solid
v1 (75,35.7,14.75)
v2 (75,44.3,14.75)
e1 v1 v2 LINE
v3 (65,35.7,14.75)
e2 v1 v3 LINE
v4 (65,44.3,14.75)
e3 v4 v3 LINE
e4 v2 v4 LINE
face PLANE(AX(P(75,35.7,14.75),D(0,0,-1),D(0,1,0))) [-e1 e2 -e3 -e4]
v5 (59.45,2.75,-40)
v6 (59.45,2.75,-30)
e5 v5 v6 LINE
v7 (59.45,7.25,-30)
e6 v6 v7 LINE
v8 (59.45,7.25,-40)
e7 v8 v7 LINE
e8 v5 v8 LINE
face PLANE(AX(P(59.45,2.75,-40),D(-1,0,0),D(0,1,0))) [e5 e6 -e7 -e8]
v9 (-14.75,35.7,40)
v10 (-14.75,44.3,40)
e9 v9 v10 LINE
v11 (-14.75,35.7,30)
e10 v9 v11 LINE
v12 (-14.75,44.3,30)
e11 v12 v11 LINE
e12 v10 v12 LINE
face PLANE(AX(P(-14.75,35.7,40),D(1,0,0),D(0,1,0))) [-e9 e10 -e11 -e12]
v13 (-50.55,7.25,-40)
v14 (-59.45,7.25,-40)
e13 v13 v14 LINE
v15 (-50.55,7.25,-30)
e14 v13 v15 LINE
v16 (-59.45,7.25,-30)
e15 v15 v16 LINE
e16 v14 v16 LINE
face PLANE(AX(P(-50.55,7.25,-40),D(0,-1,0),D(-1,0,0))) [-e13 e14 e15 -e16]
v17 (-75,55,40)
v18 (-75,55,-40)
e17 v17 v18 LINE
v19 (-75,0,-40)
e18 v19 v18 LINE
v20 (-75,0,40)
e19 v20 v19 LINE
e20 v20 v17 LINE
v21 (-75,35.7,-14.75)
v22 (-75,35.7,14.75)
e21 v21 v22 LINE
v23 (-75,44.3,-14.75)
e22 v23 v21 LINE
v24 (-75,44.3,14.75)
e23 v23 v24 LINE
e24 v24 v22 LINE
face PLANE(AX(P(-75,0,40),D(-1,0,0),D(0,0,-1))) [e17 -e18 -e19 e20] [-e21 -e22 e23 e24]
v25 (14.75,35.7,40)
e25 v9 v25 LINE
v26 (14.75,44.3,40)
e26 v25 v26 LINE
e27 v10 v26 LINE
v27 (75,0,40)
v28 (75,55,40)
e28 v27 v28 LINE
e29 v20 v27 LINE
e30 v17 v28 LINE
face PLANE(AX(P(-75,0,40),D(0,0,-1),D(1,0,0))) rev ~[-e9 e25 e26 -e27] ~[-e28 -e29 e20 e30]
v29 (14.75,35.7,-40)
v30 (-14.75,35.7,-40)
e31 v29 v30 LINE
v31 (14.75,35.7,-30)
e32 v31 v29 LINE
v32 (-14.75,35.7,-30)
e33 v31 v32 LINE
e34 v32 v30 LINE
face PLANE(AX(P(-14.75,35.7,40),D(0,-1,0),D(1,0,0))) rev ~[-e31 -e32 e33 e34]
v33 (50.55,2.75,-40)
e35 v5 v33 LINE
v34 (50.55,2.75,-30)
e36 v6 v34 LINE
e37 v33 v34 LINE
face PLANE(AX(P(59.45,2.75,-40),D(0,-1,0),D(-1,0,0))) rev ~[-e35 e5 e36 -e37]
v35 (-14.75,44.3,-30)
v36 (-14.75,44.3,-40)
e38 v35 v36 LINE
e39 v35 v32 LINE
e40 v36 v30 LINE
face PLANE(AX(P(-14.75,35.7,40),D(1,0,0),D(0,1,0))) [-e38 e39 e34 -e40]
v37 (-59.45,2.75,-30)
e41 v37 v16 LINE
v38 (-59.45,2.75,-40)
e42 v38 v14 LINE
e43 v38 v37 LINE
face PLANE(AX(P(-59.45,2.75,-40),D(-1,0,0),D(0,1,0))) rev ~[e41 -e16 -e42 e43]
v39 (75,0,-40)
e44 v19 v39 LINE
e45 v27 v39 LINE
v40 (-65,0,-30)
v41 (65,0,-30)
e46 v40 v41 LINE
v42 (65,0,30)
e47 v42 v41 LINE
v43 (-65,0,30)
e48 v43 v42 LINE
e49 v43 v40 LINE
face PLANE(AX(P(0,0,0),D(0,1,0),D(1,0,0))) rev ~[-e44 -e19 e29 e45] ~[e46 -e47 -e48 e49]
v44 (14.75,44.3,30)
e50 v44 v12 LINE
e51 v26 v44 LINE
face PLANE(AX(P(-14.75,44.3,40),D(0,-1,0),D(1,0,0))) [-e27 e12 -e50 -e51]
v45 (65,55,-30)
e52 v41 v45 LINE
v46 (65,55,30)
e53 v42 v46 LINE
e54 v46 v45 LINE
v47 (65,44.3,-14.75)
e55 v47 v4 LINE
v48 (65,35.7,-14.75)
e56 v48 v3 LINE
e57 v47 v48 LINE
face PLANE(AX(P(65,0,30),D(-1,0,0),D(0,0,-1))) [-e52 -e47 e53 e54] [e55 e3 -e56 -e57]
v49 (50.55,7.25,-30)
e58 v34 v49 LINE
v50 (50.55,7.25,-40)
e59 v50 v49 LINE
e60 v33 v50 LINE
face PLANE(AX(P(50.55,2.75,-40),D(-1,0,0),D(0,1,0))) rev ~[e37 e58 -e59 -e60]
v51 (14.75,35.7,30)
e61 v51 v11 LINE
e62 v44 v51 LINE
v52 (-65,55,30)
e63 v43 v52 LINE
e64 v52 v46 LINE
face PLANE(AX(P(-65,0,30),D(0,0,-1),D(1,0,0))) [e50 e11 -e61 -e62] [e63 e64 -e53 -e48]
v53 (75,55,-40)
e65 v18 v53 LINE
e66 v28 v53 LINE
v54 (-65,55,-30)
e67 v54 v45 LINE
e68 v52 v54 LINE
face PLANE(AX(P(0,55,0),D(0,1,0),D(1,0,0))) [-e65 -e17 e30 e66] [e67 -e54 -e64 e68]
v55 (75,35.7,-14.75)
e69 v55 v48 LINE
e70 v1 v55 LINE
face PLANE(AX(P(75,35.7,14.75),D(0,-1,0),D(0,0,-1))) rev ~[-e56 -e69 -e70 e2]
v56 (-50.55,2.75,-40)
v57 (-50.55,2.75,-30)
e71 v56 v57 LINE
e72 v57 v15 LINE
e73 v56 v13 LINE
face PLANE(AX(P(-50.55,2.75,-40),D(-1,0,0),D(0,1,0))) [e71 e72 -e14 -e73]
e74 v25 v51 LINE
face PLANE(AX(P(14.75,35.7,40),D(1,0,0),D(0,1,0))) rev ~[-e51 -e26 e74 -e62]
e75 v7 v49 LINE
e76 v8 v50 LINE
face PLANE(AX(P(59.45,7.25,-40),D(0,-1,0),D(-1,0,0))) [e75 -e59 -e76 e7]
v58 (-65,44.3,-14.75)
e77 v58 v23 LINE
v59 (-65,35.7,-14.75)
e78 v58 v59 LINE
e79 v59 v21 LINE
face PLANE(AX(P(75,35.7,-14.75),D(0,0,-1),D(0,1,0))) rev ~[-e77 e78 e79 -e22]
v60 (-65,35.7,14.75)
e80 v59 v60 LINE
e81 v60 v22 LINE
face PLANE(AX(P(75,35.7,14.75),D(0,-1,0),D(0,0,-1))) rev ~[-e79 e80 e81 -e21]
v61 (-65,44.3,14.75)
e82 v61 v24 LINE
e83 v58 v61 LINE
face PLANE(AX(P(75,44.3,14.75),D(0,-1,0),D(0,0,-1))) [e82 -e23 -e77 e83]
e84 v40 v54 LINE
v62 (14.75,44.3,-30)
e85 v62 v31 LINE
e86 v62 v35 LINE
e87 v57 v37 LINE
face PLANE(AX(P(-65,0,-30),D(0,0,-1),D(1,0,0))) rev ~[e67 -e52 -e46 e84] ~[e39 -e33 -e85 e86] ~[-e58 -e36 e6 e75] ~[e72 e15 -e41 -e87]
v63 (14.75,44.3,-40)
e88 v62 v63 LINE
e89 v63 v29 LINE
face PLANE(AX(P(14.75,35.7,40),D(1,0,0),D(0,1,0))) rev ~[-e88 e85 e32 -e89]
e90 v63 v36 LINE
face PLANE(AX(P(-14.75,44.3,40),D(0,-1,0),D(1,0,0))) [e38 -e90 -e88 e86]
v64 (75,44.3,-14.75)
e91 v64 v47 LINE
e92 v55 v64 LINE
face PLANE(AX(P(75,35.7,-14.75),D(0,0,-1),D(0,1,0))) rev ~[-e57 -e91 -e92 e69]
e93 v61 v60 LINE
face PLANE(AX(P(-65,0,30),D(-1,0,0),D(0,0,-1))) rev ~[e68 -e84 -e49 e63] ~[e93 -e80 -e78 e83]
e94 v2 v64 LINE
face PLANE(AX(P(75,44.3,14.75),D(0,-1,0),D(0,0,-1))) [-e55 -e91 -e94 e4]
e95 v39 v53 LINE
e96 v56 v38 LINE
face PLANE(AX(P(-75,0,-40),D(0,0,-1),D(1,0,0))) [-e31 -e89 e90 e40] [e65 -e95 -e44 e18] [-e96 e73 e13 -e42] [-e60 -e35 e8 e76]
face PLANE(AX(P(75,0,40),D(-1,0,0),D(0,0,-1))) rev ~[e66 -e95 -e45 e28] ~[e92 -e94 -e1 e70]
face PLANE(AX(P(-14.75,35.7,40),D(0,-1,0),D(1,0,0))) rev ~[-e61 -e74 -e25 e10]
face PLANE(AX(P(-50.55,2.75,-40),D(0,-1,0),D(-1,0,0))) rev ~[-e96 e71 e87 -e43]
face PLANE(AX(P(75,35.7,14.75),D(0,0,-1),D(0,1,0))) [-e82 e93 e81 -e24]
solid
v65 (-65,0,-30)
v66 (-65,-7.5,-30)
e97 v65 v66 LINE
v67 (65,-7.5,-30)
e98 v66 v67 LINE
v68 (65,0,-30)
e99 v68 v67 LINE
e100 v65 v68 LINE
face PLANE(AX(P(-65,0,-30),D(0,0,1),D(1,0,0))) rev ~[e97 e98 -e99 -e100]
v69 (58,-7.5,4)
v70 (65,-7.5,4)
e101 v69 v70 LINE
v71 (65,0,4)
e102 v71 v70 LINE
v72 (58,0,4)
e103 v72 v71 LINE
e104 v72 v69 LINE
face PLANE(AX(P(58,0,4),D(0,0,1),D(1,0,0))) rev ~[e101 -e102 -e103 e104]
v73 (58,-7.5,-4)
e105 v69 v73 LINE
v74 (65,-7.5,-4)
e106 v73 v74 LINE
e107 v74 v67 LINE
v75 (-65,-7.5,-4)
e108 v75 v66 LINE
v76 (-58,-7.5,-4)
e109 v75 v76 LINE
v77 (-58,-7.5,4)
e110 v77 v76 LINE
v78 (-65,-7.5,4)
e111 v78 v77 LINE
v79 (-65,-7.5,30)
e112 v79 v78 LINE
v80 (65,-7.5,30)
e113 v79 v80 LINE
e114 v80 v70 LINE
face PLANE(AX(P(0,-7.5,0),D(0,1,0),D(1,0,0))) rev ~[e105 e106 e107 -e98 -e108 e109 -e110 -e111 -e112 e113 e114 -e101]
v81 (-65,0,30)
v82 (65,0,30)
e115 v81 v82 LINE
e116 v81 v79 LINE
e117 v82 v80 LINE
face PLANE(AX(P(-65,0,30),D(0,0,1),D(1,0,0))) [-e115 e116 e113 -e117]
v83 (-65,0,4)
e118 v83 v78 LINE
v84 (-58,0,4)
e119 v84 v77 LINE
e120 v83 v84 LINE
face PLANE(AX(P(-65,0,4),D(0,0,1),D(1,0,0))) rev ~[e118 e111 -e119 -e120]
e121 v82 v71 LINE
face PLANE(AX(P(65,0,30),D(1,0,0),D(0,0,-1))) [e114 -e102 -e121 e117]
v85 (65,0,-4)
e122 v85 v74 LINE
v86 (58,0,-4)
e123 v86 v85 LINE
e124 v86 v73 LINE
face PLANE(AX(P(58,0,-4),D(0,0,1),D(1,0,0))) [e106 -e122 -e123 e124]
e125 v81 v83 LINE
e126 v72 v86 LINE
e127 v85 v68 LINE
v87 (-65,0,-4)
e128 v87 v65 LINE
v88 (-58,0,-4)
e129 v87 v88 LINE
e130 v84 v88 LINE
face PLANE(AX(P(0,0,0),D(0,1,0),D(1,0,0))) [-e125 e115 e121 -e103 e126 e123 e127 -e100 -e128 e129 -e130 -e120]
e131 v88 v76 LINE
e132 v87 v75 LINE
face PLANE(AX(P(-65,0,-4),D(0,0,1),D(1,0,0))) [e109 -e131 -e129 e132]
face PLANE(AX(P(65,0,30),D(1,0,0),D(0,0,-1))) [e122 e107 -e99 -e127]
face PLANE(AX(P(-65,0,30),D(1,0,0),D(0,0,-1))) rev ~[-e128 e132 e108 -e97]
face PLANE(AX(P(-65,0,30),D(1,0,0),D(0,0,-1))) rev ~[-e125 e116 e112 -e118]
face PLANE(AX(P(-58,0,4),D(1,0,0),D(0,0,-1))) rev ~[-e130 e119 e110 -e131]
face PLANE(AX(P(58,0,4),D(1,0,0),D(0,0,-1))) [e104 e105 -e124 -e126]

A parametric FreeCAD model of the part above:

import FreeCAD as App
import Part
import Sketcher
from FreeCAD import Vector
Q = App.Units.Quantity

doc = App.newDocument("Part")
body = doc.addObject("PartDesign::Body", "Body")

# Sketch on XZ plane
sketch1 = body.newObject("Sketcher::SketchObject", "Sketch")
sketch1.AttachmentSupport = (doc.getObject("XZ_Plane"), [""])
sketch1.MapMode = "FlatFace"
sketch1.addGeometry([
    Part.LineSegment(Vector(-65, -30, 0), Vector(-65, 30, 0)),
    Part.LineSegment(Vector(-65, 30, 0), Vector(65, 30, 0)),
    Part.LineSegment(Vector(65, 30, 0), Vector(65, -30, 0)),
    Part.LineSegment(Vector(65, -30, 0), Vector(-65, -30, 0)),
], False)
sketch1.addConstraint([
    Sketcher.Constraint("Coincident", 0, 2, 1, 1),
    Sketcher.Constraint("Coincident", 1, 2, 2, 1),
    Sketcher.Constraint("Coincident", 2, 2, 3, 1),
    Sketcher.Constraint("Coincident", 3, 2, 0, 1),
    Sketcher.Constraint("Vertical", 0),
    Sketcher.Constraint("Horizontal", 1),
    Sketcher.Constraint("Vertical", 2),
    Sketcher.Constraint("Horizontal", 3),
    Sketcher.Constraint("Symmetric", 0, 2, 2, 2, -1, 1),
    Sketcher.Constraint("DistanceX", 1, 1, 1, 2, Q("130 mm")),
    Sketcher.Constraint("DistanceY", 0, 1, 0, 2, Q("60 mm")),
])
pad1 = body.newObject("PartDesign::Pad", "Pad")
pad1.Profile = sketch1
pad1.Length = 7.5

# Sketch on XZ plane
sketch2 = body.newObject("Sketcher::SketchObject", "Sketch001")
sketch2.AttachmentSupport = (doc.getObject("XZ_Plane"), [""])
sketch2.MapMode = "FlatFace"
sketch2.addGeometry([
    Part.LineSegment(Vector(58, -4, 0), Vector(58, 4, 0)),  # 0
    Part.LineSegment(Vector(58, 4, 0), Vector(65, 4, 0)),  # 1
    Part.LineSegment(Vector(65, 4, 0), Vector(65, -4, 0)),  # 2
    Part.LineSegment(Vector(65, -4, 0), Vector(58, -4, 0)),  # 3
    Part.LineSegment(Vector(-65, -4, 0), Vector(-65, 4, 0)),  # 4
    Part.LineSegment(Vector(-65, 4, 0), Vector(-58, 4, 0)),  # 5
    Part.LineSegment(Vector(-58, 4, 0), Vector(-58, -4, 0)),  # 6
    Part.LineSegment(Vector(-58, -4, 0), Vector(-65, -4, 0)),  # 7
], False)
sketch2.addConstraint([
    Sketcher.Constraint("Coincident", 0, 2, 1, 1),
    Sketcher.Constraint("Coincident", 1, 2, 2, 1),
    Sketcher.Constraint("Coincident", 2, 2, 3, 1),
    Sketcher.Constraint("Coincident", 3, 2, 0, 1),
    Sketcher.Constraint("Coincident", 4, 2, 5, 1),
    Sketcher.Constraint("Coincident", 5, 2, 6, 1),
    Sketcher.Constraint("Coincident", 6, 2, 7, 1),
    Sketcher.Constraint("Coincident", 7, 2, 4, 1),
    Sketcher.Constraint("Vertical", 0),
    Sketcher.Constraint("Horizontal", 1),
    Sketcher.Constraint("Vertical", 2),
    Sketcher.Constraint("Horizontal", 3),
    Sketcher.Constraint("Vertical", 4),
    Sketcher.Constraint("Horizontal", 5),
    Sketcher.Constraint("Vertical", 6),
    Sketcher.Constraint("Horizontal", 7),
    Sketcher.Constraint("Symmetric", 2, 2, 4, 2, -1, 1),
    Sketcher.Constraint("Symmetric", 0, 2, 6, 2, -1, 1),
    Sketcher.Constraint("Horizontal", 1, 2, 4, 2),
    Sketcher.Constraint("DistanceX", 1, 1, 1, 2, Q("7 mm")),
    Sketcher.Constraint("DistanceY", 0, 1, 0, 2, Q("8 mm")),
    Sketcher.Constraint("DistanceX", -1, 1, 0, 2, Q("58 mm")),
])
pocket1 = body.newObject("PartDesign::Pocket", "Pocket")
pocket1.Profile = sketch2
pocket1.Type = "ThroughAll"
pocket1.Reversed = True
body2 = doc.addObject("PartDesign::Body", "Body001")

# Sketch on XZ plane
sketch3 = body2.newObject("Sketcher::SketchObject", "Sketch002")
sketch3.AttachmentSupport = (doc.getObject("XZ_Plane001"), [""])
sketch3.MapMode = "FlatFace"
sketch3.addGeometry([
    Part.LineSegment(Vector(-75, -40, 0), Vector(-75, 40, 0)),  # 0
    Part.LineSegment(Vector(-75, 40, 0), Vector(75, 40, 0)),  # 1
    Part.LineSegment(Vector(75, 40, 0), Vector(75, -40, 0)),  # 2
    Part.LineSegment(Vector(75, -40, 0), Vector(-75, -40, 0)),  # 3
    Part.LineSegment(Vector(65, 30, 0), Vector(-65, 30, 0)),  # 4
    Part.LineSegment(Vector(-65, 30, 0), Vector(-65, -30, 0)),  # 5
    Part.LineSegment(Vector(-65, -30, 0), Vector(65, -30, 0)),  # 6
    Part.LineSegment(Vector(65, -30, 0), Vector(65, 30, 0)),  # 7
], False)
sketch3.addConstraint([
    Sketcher.Constraint("Coincident", 0, 2, 1, 1),
    Sketcher.Constraint("Coincident", 1, 2, 2, 1),
    Sketcher.Constraint("Coincident", 2, 2, 3, 1),
    Sketcher.Constraint("Coincident", 3, 2, 0, 1),
    Sketcher.Constraint("Coincident", 4, 2, 5, 1),
    Sketcher.Constraint("Coincident", 5, 2, 6, 1),
    Sketcher.Constraint("Coincident", 6, 2, 7, 1),
    Sketcher.Constraint("Coincident", 7, 2, 4, 1),
    Sketcher.Constraint("Vertical", 0),
    Sketcher.Constraint("Horizontal", 1),
    Sketcher.Constraint("Vertical", 2),
    Sketcher.Constraint("Horizontal", 3),
    Sketcher.Constraint("Horizontal", 4),
    Sketcher.Constraint("Vertical", 5),
    Sketcher.Constraint("Horizontal", 6),
    Sketcher.Constraint("Vertical", 7),
    Sketcher.Constraint("Symmetric", 0, 2, 2, 2, -1, 1),
    Sketcher.Constraint("Symmetric", 4, 2, 6, 2, -1, 1),
    Sketcher.Constraint("DistanceX", 1, 1, 1, 2, Q("150 mm")),
    Sketcher.Constraint("DistanceX", 4, 2, 4, 1, Q("130 mm")),
    Sketcher.Constraint("DistanceY", 0, 1, 0, 2, Q("80 mm")),
    Sketcher.Constraint("DistanceY", 5, 2, 5, 1, Q("60 mm")),
])
pad2 = body2.newObject("PartDesign::Pad", "Pad001")
pad2.Profile = sketch3
pad2.Length = 55
pad2.Reversed = True

# Sketch on XY plane
sketch4 = body2.newObject("Sketcher::SketchObject", "Sketch003")
sketch4.AttachmentSupport = (doc.getObject("XY_Plane001"), [""])
sketch4.MapMode = "FlatFace"
sketch4.AttachmentOffset = App.Placement(Vector(0, 0, 40), App.Rotation())
sketch4.addGeometry([
    Part.LineSegment(Vector(-14.75, 44.3, 0), Vector(-14.75, 35.7, 0)),
    Part.LineSegment(Vector(-14.75, 35.7, 0), Vector(14.75, 35.7, 0)),
    Part.LineSegment(Vector(14.75, 35.7, 0), Vector(14.75, 44.3, 0)),
    Part.LineSegment(Vector(14.75, 44.3, 0), Vector(-14.75, 44.3, 0)),
], False)
sketch4.addConstraint([
    Sketcher.Constraint("Coincident", 0, 2, 1, 1),
    Sketcher.Constraint("Coincident", 1, 2, 2, 1),
    Sketcher.Constraint("Coincident", 2, 2, 3, 1),
    Sketcher.Constraint("Coincident", 3, 2, 0, 1),
    Sketcher.Constraint("Vertical", 0),
    Sketcher.Constraint("Horizontal", 1),
    Sketcher.Constraint("Vertical", 2),
    Sketcher.Constraint("Horizontal", 3),
    Sketcher.Constraint("DistanceX", 1, 1, 1, 2, Q("29.5 mm")),
    Sketcher.Constraint("DistanceY", 0, 2, 0, 1, Q("8.6 mm")),
    Sketcher.Constraint("DistanceY", -1, 1, 0, 2, Q("35.7 mm")),
    Sketcher.Constraint("DistanceX", 0, 2, -1, 1, Q("14.75 mm")),
])
pocket2 = body2.newObject("PartDesign::Pocket", "Pocket001")
pocket2.Profile = sketch4
pocket2.Type = "ThroughAll"

# Sketch on XY plane
sketch5 = body2.newObject("Sketcher::SketchObject", "Sketch004")
sketch5.AttachmentSupport = (doc.getObject("XY_Plane001"), [""])
sketch5.MapMode = "FlatFace"
sketch5.AttachmentOffset = App.Placement(Vector(0, 0, -40), App.Rotation())
sketch5.addGeometry([
    Part.LineSegment(Vector(59.45, 7.25, 0), Vector(59.45, 2.75, 0)),  # 0
    Part.LineSegment(Vector(59.45, 2.75, 0), Vector(50.55, 2.75, 0)),  # 1
    Part.LineSegment(Vector(50.55, 2.75, 0), Vector(50.55, 7.25, 0)),  # 2
    Part.LineSegment(Vector(50.55, 7.25, 0), Vector(59.45, 7.25, 0)),  # 3
    Part.LineSegment(Vector(-50.55, 7.25, 0), Vector(-50.55, 2.75, 0)),  # 4
    Part.LineSegment(Vector(-50.55, 2.75, 0), Vector(-59.45, 2.75, 0)),  # 5
    Part.LineSegment(Vector(-59.45, 2.75, 0), Vector(-59.45, 7.25, 0)),  # 6
    Part.LineSegment(Vector(-59.45, 7.25, 0), Vector(-50.55, 7.25, 0)),  # 7
], False)
sketch5.addConstraint([
    Sketcher.Constraint("Coincident", 0, 2, 1, 1),
    Sketcher.Constraint("Coincident", 1, 2, 2, 1),
    Sketcher.Constraint("Coincident", 2, 2, 3, 1),
    Sketcher.Constraint("Coincident", 3, 2, 0, 1),
    Sketcher.Constraint("Coincident", 4, 2, 5, 1),
    Sketcher.Constraint("Coincident", 5, 2, 6, 1),
    Sketcher.Constraint("Coincident", 6, 2, 7, 1),
    Sketcher.Constraint("Coincident", 7, 2, 4, 1),
    Sketcher.Constraint("Vertical", 0),
    Sketcher.Constraint("Horizontal", 1),
    Sketcher.Constraint("Vertical", 2),
    Sketcher.Constraint("Horizontal", 3),
    Sketcher.Constraint("Vertical", 4),
    Sketcher.Constraint("Horizontal", 5),
    Sketcher.Constraint("Vertical", 6),
    Sketcher.Constraint("Horizontal", 7),
    Sketcher.Constraint("Symmetric", 1, 2, 4, 2, -2),
    Sketcher.Constraint("Symmetric", 3, 2, 6, 2, -2),
    Sketcher.Constraint("DistanceX", 1, 2, 1, 1, Q("8.9 mm")),
    Sketcher.Constraint("DistanceY", 0, 2, 0, 1, Q("4.5 mm")),
    Sketcher.Constraint("DistanceX", 4, 2, 0, 2, Q("110 mm")),
    Sketcher.Constraint("DistanceY", -1, 1, 0, 2, Q("2.75 mm")),
])
pocket3 = body2.newObject("PartDesign::Pocket", "Pocket002")
pocket3.Profile = sketch5
pocket3.Length = 10
pocket3.Reversed = True

# Sketch on YZ plane
sketch6 = body2.newObject("Sketcher::SketchObject", "Sketch005")
sketch6.AttachmentSupport = (doc.getObject("YZ_Plane001"), [""])
sketch6.MapMode = "FlatFace"
sketch6.AttachmentOffset = App.Placement(Vector(0, 0, 75), App.Rotation())
sketch6.addGeometry([
    Part.LineSegment(Vector(44.3, 14.75, 0), Vector(35.7, 14.75, 0)),
    Part.LineSegment(Vector(35.7, 14.75, 0), Vector(35.7, -14.75, 0)),
    Part.LineSegment(Vector(35.7, -14.75, 0), Vector(44.3, -14.75, 0)),
    Part.LineSegment(Vector(44.3, -14.75, 0), Vector(44.3, 14.75, 0)),
], False)
sketch6.addConstraint([
    Sketcher.Constraint("Coincident", 0, 2, 1, 1),
    Sketcher.Constraint("Coincident", 1, 2, 2, 1),
    Sketcher.Constraint("Coincident", 2, 2, 3, 1),
    Sketcher.Constraint("Coincident", 3, 2, 0, 1),
    Sketcher.Constraint("Horizontal", 0),
    Sketcher.Constraint("Vertical", 1),
    Sketcher.Constraint("Horizontal", 2),
    Sketcher.Constraint("Vertical", 3),
    Sketcher.Constraint("DistanceX", 0, 2, 0, 1, Q("8.6 mm")),
    Sketcher.Constraint("DistanceY", 1, 2, 1, 1, Q("29.5 mm")),
    Sketcher.Constraint("DistanceX", -1, 1, 0, 2, Q("35.7 mm")),
    Sketcher.Constraint("DistanceY", -1, 1, 0, 2, Q("14.75 mm")),
])
pocket4 = body2.newObject("PartDesign::Pocket", "Pocket003")
pocket4.Profile = sketch6
pocket4.Type = "ThroughAll"

doc.recompute()
